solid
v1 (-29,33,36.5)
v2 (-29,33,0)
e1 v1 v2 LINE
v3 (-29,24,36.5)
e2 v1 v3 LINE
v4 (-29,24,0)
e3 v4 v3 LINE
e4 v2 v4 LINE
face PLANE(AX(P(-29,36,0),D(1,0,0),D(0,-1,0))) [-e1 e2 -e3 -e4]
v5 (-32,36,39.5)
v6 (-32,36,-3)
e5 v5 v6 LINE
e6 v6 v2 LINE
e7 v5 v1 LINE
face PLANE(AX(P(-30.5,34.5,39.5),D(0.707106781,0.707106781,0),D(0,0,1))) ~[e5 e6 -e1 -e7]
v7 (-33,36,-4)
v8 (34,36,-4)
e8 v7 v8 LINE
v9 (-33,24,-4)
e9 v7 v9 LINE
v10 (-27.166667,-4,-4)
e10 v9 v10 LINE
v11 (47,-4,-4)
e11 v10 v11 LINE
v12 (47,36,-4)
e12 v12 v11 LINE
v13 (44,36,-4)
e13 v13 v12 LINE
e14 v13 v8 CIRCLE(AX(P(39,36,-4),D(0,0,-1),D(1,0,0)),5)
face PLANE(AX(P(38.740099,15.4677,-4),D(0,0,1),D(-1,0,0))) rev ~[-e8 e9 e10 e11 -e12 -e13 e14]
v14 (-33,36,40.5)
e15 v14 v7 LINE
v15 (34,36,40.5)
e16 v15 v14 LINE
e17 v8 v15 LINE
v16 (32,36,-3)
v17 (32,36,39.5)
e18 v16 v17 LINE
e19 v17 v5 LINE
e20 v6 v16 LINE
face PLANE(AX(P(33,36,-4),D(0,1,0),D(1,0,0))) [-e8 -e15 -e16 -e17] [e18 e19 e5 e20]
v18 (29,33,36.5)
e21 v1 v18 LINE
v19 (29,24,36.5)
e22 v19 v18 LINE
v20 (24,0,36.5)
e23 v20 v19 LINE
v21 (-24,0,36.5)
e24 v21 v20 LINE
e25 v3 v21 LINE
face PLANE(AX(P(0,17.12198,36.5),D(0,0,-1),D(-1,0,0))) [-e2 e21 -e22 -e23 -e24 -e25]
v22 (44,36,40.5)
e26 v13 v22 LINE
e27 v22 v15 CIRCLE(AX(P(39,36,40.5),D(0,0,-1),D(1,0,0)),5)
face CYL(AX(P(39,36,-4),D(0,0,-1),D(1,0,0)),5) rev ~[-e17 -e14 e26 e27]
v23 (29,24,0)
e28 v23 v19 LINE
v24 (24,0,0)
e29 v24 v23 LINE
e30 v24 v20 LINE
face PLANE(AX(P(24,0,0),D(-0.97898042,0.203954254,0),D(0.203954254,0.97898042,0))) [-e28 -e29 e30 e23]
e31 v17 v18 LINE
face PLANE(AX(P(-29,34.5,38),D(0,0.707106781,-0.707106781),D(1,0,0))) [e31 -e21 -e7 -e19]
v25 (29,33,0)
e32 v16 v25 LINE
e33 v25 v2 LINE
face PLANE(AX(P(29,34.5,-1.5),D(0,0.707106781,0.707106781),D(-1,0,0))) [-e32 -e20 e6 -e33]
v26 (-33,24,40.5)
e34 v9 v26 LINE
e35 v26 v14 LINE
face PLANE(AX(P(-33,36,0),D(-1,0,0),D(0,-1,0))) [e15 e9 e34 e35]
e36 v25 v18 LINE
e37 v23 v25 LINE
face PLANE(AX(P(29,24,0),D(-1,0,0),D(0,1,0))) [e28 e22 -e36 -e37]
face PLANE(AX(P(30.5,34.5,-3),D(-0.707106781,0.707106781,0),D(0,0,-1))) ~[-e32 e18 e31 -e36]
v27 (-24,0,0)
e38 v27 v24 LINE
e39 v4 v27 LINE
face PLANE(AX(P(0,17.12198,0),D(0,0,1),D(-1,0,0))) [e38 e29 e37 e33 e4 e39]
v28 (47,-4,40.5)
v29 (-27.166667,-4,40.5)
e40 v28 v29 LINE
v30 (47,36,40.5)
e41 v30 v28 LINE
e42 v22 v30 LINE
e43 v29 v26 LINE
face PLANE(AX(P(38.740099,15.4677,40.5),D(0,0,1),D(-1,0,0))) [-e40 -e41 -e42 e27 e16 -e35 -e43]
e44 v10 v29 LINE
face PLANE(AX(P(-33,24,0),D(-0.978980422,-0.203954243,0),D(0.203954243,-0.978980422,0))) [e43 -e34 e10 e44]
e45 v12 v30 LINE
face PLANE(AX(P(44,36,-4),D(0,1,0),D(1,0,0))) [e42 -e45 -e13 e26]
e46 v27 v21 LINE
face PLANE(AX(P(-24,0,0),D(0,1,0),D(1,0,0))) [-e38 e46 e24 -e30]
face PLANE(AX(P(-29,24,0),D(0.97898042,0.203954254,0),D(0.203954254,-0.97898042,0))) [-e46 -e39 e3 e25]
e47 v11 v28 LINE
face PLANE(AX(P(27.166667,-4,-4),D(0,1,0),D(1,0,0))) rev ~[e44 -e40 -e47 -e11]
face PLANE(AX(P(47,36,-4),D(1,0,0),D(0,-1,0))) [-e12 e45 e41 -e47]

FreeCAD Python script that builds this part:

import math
import FreeCAD as App
import Part
import Sketcher
from FreeCAD import Vector


def edges_at(feature, points):
    """Names of the edges that pass closest to the given points."""
    edges = feature.Shape.Edges
    near = lambda p: min(range(len(edges)), key=lambda i: edges[i].distToShape(Part.Vertex(*p))[0])
    return sorted({f"Edge{near(p) + 1}" for p in points})


def add_polygon(sketch, points):
    """Adds a closed chain of lines whose ends are joined by coincident constraints."""
    first, n = sketch.GeometryCount, len(points)
    for a, b in zip(points, points[1:] + points[:1]):
        sketch.addGeometry(Part.LineSegment(App.Vector(*a, 0), App.Vector(*b, 0)), False)
    for i in range(n):
        sketch.addConstraint(Sketcher.Constraint("Coincident", first + i, 2, first + (i + 1) % n, 1))

doc = App.newDocument("Part")
params = doc.addObject("Spreadsheet::Sheet", "Params")
for row, (alias, value) in enumerate([
    ("sketch1_width", "66 mm"),
    ("sketch1_height", "12 mm"),
    ("pad1_length", "4 mm"),
    ("sketch2_width", "66 mm"),
    ("sketch2_height", "12 mm"),
    ("pad2_length", "4 mm"),
    ("sketch3_radius", "5 mm"),
    ("sketch3_width", "1 mm"),
    ("sketch3_width2", "3 mm"),
    ("sketch3_height", "12 mm"),
    ("sketch3_height2", "40 mm"),
    ("pad3_length", "44.5 mm"),
    ("sketch4_width", "48 mm"),
    ("sketch4_width2", "4 mm"),
    ("sketch4_height", "12 mm"),
    ("pad4_length", "36.5 mm"),
    ("chamfer_size", "3 mm"),
    ("chamfer2_size", "3 mm"),
    ("chamfer3_size", "3 mm"),
    ("chamfer4_size", "3 mm"),
], start=1):
    params.set(f"A{row}", alias)
    params.set(f"B{row}", "=" + value)
    params.setAlias(f"B{row}", alias)

body = doc.addObject("PartDesign::Body", "Body")

# Sketch on XY plane
sketch1 = body.newObject("Sketcher::SketchObject", "Sketch")
sketch1.AttachmentSupport = (doc.getObject("XY_Plane"), [""])
sketch1.MapMode = "FlatFace"
sketch1.AttachmentOffset = App.Placement(Vector(0, 0, 36.5), App.Rotation())
add_polygon(sketch1, [(33, 36), (-33, 36), (-33, 24), (-27, -4), (27, -4), (33, 24)])  # lines 0-5
sketch1.addConstraint(Sketcher.Constraint("Horizontal", 0))
sketch1.addConstraint(Sketcher.Constraint("Vertical", 1))
sketch1.addConstraint(Sketcher.Constraint("Horizontal", 3))
sketch1.addConstraint(Sketcher.Constraint("Vertical", 5))
sketch1.addConstraint(Sketcher.Constraint("Symmetric", 1, 2, 4, 2, -2))
sketch1.addConstraint(Sketcher.Constraint("Equal", 2, 4))
sketch1.addConstraint(Sketcher.Constraint("DistanceX", 0, 2, 0, 1, 66.0))
sketch1.addConstraint(Sketcher.Constraint("DistanceY", 1, 2, 1, 1, 12.0))
sketch1.addConstraint(Sketcher.Constraint("DistanceY", -1, 1, 0, 2, 36.0))
sketch1.addConstraint(Sketcher.Constraint("DistanceY", 2, 2, -1, 1, 4.0))
sketch1.addConstraint(Sketcher.Constraint("DistanceX", 3, 1, 3, 2, 54.333334))
sketch1.setExpression("Constraints[12]", "Params.sketch1_width")
sketch1.setExpression("Constraints[13]", "Params.sketch1_height")
pad1 = body.newObject("PartDesign::Pad", "Pad")
pad1.Profile = sketch1
pad1.setExpression("Length", "Params.pad1_length")
body2 = doc.addObject("PartDesign::Body", "Body001")

# Sketch on XY plane
sketch2 = body2.newObject("Sketcher::SketchObject", "Sketch001")
sketch2.AttachmentSupport = (doc.getObject("XY_Plane001"), [""])
sketch2.MapMode = "FlatFace"
add_polygon(sketch2, [(-33, 24), (-33, 36), (33, 36), (33, 24), (27, -4), (-27, -4)])  # lines 0-5
sketch2.addConstraint(Sketcher.Constraint("Vertical", 0))
sketch2.addConstraint(Sketcher.Constraint("Horizontal", 1))
sketch2.addConstraint(Sketcher.Constraint("Vertical", 2))
sketch2.addConstraint(Sketcher.Constraint("Horizontal", 4))
sketch2.addConstraint(Sketcher.Constraint("Symmetric", 2, 2, 5, 2, -2))
sketch2.addConstraint(Sketcher.Constraint("Equal", 3, 5))
sketch2.addConstraint(Sketcher.Constraint("DistanceX", 1, 1, 1, 2, 66.0))
sketch2.addConstraint(Sketcher.Constraint("DistanceY", 0, 1, 0, 2, 12.0))
sketch2.addConstraint(Sketcher.Constraint("DistanceY", -1, 1, 0, 2, 36.0))
sketch2.addConstraint(Sketcher.Constraint("DistanceY", 3, 2, -1, 1, 4.0))
sketch2.addConstraint(Sketcher.Constraint("DistanceX", 4, 2, 4, 1, 54.333334))
sketch2.setExpression("Constraints[12]", "Params.sketch2_width")
sketch2.setExpression("Constraints[13]", "Params.sketch2_height")
pad2 = body2.newObject("PartDesign::Pad", "Pad001")
pad2.Profile = sketch2
pad2.setExpression("Length", "Params.pad2_length")
pad2.Reversed = True
body3 = doc.addObject("PartDesign::Body", "Body002")

# Sketch on XY plane
sketch3 = body3.newObject("Sketcher::SketchObject", "Sketch002")
sketch3.AttachmentSupport = (doc.getObject("XY_Plane002"), [""])
sketch3.MapMode = "FlatFace"
sketch3.AttachmentOffset = App.Placement(Vector(0, 0, -4), App.Rotation())
sketch3.addGeometry(Part.LineSegment(Vector(47, -4, 0), Vector(27.2, -4, 0)), False)
sketch3.addGeometry(Part.LineSegment(Vector(27.2, -4, 0), Vector(33, 24, 0)), False)
sketch3.addGeometry(Part.LineSegment(Vector(33, 24, 0), Vector(33, 36, 0)), False)
sketch3.addGeometry(Part.LineSegment(Vector(33, 36, 0), Vector(34, 36, 0)), False)
sketch3.addGeometry(Part.ArcOfCircle(Part.Circle(Vector(39, 36, 0), Vector(0, 0, 1), 5), math.radians(180), math.radians(360)), False)
sketch3.addGeometry(Part.LineSegment(Vector(44, 36, 0), Vector(47, 36, 0)), False)
sketch3.addGeometry(Part.LineSegment(Vector(47, 36, 0), Vector(47, -4, 0)), False)
sketch3.addConstraint(Sketcher.Constraint("Coincident", 0, 2, 1, 1))
sketch3.addConstraint(Sketcher.Constraint("Coincident", 1, 2, 2, 1))
sketch3.addConstraint(Sketcher.Constraint("Coincident", 2, 2, 3, 1))
sketch3.addConstraint(Sketcher.Constraint("Coincident", 3, 2, 4, 1))
sketch3.addConstraint(Sketcher.Constraint("Coincident", 4, 2, 5, 1))
sketch3.addConstraint(Sketcher.Constraint("Coincident", 5, 2, 6, 1))
sketch3.addConstraint(Sketcher.Constraint("Coincident", 6, 2, 0, 1))
sketch3.addConstraint(Sketcher.Constraint("Horizontal", 0))
sketch3.addConstraint(Sketcher.Constraint("Vertical", 2))
sketch3.addConstraint(Sketcher.Constraint("Horizontal", 3))
sketch3.addConstraint(Sketcher.Constraint("Horizontal", 5))
sketch3.addConstraint(Sketcher.Constraint("Vertical", 6))
sketch3.addConstraint(Sketcher.Constraint("Horizontal", 4, 3, 2, 2))
sketch3.addConstraint(Sketcher.Constraint("Horizontal", 3, 2, 4, 2))
sketch3.addConstraint(Sketcher.Constraint("Radius", 4, 5.0))
sketch3.addConstraint(Sketcher.Constraint("DistanceX", 3, 1, 3, 2, 1.0))
sketch3.addConstraint(Sketcher.Constraint("DistanceX", 5, 1, 5, 2, 3.0))
sketch3.addConstraint(Sketcher.Constraint("DistanceY", 2, 1, 2, 2, 12.0))
sketch3.addConstraint(Sketcher.Constraint("DistanceY", 6, 2, 6, 1, 40.0))
sketch3.addConstraint(Sketcher.Constraint("DistanceX", -1, 1, 4, 3, 39.0))
sketch3.addConstraint(Sketcher.Constraint("DistanceY", -1, 1, 4, 3, 36.0))
sketch3.addConstraint(Sketcher.Constraint("DistanceX", 0, 2, 0, 1, 19.833333))
sketch3.setExpression("Constraints[14]", "Params.sketch3_radius")
sketch3.setExpression("Constraints[15]", "Params.sketch3_width")
sketch3.setExpression("Constraints[16]", "Params.sketch3_width2")
sketch3.setExpression("Constraints[17]", "Params.sketch3_height")
sketch3.setExpression("Constraints[18]", "Params.sketch3_height2")
pad3 = body3.newObject("PartDesign::Pad", "Pad002")
pad3.Profile = sketch3
pad3.setExpression("Length", "Params.pad3_length")
body4 = doc.addObject("PartDesign::Body", "Body003")

# Sketch on XY plane
sketch4 = body4.newObject("Sketcher::SketchObject", "Sketch003")
sketch4.AttachmentSupport = (doc.getObject("XY_Plane003"), [""])
sketch4.MapMode = "FlatFace"
add_polygon(sketch4, [(24, 0), (-24, 0), (-29, 24), (-29, 36), (-33, 36), (-33, 24), (-27.2, -4), (27.2, -4), (33, 24), (33, 36), (29, 36), (29, 24)])  # lines 0-11
sketch4.addConstraint(Sketcher.Constraint("Horizontal", 0))
sketch4.addConstraint(Sketcher.Constraint("Vertical", 2))
sketch4.addConstraint(Sketcher.Constraint("Horizontal", 3))
sketch4.addConstraint(Sketcher.Constraint("Vertical", 4))
sketch4.addConstraint(Sketcher.Constraint("Horizontal", 6))
sketch4.addConstraint(Sketcher.Constraint("Vertical", 8))
sketch4.addConstraint(Sketcher.Constraint("Horizontal", 9))
sketch4.addConstraint(Sketcher.Constraint("Vertical", 10))
sketch4.addConstraint(Sketcher.Constraint("Symmetric", 0, 2, 11, 2, -1, 1))
sketch4.addConstraint(Sketcher.Constraint("Symmetric", 4, 2, 7, 2, -2))
sketch4.addConstraint(Sketcher.Constraint("Symmetric", 2, 2, 9, 2, -2))
sketch4.addConstraint(Sketcher.Constraint("Parallel", 1, 5))
sketch4.addConstraint(Sketcher.Constraint("Parallel", 7, 11))
sketch4.addConstraint(Sketcher.Constraint("Horizontal", 1, 2, 4, 2))
sketch4.addConstraint(Sketcher.Constraint("Horizontal", 7, 2, 10, 2))
sketch4.addConstraint(Sketcher.Constraint("DistanceX", 0, 2, 0, 1, 48.0))
sketch4.addConstraint(Sketcher.Constraint("DistanceX", 3, 2, 3, 1, 4.0))
sketch4.addConstraint(Sketcher.Constraint("DistanceY", 2, 1, 2, 2, 12.0))
sketch4.addConstraint(Sketcher.Constraint("DistanceX", 1, 2, -1, 1, 29.0))
sketch4.addConstraint(Sketcher.Constraint("DistanceY", -1, 1, 1, 2, 24.0))
sketch4.addConstraint(Sketcher.Constraint("DistanceY", 5, 2, -1, 1, 4.0))
sketch4.setExpression("Constraints[27]", "Params.sketch4_width")
sketch4.setExpression("Constraints[28]", "Params.sketch4_width2")
sketch4.setExpression("Constraints[29]", "Params.sketch4_height")
pad4 = body4.newObject("PartDesign::Pad", "Pad003")
pad4.Profile = sketch4
pad4.setExpression("Length", "Params.pad4_length")
doc.recompute()

boolean = body4.newObject("PartDesign::Boolean", "Boolean")
boolean.Type = "Fuse"
boolean.addObjects([body])
doc.recompute()

boolean2 = body4.newObject("PartDesign::Boolean", "Boolean001")
boolean2.Type = "Fuse"
boolean2.addObjects([body2])
doc.recompute()

boolean3 = body4.newObject("PartDesign::Boolean", "Boolean002")
boolean3.Type = "Fuse"
boolean3.addObjects([body3])
doc.recompute()

chamfer = body4.newObject("PartDesign::Chamfer", "Chamfer")
chamfer.Base = (boolean3, edges_at(boolean3, [(0, 36, 36.5)]))
chamfer.setExpression("Size", "Params.chamfer_size")
doc.recompute()

chamfer2 = body4.newObject("PartDesign::Chamfer", "Chamfer001")
chamfer2.Base = (chamfer, edges_at(chamfer, [(0, 36, 0)]))
chamfer2.setExpression("Size", "Params.chamfer2_size")
doc.recompute()

chamfer3 = body4.newObject("PartDesign::Chamfer", "Chamfer002")
chamfer3.Base = (chamfer2, edges_at(chamfer2, [(29, 36, 18.25), (29, 36, 18.25), (29, 36, 18.25)]))
chamfer3.setExpression("Size", "Params.chamfer3_size")
doc.recompute()

chamfer4 = body4.newObject("PartDesign::Chamfer", "Chamfer003")
chamfer4.Base = (chamfer3, edges_at(chamfer3, [(-29, 36, 18.25), (-29, 36, 18.25), (-29, 36, 18.25)]))
chamfer4.setExpression("Size", "Params.chamfer4_size")

doc.recompute()
